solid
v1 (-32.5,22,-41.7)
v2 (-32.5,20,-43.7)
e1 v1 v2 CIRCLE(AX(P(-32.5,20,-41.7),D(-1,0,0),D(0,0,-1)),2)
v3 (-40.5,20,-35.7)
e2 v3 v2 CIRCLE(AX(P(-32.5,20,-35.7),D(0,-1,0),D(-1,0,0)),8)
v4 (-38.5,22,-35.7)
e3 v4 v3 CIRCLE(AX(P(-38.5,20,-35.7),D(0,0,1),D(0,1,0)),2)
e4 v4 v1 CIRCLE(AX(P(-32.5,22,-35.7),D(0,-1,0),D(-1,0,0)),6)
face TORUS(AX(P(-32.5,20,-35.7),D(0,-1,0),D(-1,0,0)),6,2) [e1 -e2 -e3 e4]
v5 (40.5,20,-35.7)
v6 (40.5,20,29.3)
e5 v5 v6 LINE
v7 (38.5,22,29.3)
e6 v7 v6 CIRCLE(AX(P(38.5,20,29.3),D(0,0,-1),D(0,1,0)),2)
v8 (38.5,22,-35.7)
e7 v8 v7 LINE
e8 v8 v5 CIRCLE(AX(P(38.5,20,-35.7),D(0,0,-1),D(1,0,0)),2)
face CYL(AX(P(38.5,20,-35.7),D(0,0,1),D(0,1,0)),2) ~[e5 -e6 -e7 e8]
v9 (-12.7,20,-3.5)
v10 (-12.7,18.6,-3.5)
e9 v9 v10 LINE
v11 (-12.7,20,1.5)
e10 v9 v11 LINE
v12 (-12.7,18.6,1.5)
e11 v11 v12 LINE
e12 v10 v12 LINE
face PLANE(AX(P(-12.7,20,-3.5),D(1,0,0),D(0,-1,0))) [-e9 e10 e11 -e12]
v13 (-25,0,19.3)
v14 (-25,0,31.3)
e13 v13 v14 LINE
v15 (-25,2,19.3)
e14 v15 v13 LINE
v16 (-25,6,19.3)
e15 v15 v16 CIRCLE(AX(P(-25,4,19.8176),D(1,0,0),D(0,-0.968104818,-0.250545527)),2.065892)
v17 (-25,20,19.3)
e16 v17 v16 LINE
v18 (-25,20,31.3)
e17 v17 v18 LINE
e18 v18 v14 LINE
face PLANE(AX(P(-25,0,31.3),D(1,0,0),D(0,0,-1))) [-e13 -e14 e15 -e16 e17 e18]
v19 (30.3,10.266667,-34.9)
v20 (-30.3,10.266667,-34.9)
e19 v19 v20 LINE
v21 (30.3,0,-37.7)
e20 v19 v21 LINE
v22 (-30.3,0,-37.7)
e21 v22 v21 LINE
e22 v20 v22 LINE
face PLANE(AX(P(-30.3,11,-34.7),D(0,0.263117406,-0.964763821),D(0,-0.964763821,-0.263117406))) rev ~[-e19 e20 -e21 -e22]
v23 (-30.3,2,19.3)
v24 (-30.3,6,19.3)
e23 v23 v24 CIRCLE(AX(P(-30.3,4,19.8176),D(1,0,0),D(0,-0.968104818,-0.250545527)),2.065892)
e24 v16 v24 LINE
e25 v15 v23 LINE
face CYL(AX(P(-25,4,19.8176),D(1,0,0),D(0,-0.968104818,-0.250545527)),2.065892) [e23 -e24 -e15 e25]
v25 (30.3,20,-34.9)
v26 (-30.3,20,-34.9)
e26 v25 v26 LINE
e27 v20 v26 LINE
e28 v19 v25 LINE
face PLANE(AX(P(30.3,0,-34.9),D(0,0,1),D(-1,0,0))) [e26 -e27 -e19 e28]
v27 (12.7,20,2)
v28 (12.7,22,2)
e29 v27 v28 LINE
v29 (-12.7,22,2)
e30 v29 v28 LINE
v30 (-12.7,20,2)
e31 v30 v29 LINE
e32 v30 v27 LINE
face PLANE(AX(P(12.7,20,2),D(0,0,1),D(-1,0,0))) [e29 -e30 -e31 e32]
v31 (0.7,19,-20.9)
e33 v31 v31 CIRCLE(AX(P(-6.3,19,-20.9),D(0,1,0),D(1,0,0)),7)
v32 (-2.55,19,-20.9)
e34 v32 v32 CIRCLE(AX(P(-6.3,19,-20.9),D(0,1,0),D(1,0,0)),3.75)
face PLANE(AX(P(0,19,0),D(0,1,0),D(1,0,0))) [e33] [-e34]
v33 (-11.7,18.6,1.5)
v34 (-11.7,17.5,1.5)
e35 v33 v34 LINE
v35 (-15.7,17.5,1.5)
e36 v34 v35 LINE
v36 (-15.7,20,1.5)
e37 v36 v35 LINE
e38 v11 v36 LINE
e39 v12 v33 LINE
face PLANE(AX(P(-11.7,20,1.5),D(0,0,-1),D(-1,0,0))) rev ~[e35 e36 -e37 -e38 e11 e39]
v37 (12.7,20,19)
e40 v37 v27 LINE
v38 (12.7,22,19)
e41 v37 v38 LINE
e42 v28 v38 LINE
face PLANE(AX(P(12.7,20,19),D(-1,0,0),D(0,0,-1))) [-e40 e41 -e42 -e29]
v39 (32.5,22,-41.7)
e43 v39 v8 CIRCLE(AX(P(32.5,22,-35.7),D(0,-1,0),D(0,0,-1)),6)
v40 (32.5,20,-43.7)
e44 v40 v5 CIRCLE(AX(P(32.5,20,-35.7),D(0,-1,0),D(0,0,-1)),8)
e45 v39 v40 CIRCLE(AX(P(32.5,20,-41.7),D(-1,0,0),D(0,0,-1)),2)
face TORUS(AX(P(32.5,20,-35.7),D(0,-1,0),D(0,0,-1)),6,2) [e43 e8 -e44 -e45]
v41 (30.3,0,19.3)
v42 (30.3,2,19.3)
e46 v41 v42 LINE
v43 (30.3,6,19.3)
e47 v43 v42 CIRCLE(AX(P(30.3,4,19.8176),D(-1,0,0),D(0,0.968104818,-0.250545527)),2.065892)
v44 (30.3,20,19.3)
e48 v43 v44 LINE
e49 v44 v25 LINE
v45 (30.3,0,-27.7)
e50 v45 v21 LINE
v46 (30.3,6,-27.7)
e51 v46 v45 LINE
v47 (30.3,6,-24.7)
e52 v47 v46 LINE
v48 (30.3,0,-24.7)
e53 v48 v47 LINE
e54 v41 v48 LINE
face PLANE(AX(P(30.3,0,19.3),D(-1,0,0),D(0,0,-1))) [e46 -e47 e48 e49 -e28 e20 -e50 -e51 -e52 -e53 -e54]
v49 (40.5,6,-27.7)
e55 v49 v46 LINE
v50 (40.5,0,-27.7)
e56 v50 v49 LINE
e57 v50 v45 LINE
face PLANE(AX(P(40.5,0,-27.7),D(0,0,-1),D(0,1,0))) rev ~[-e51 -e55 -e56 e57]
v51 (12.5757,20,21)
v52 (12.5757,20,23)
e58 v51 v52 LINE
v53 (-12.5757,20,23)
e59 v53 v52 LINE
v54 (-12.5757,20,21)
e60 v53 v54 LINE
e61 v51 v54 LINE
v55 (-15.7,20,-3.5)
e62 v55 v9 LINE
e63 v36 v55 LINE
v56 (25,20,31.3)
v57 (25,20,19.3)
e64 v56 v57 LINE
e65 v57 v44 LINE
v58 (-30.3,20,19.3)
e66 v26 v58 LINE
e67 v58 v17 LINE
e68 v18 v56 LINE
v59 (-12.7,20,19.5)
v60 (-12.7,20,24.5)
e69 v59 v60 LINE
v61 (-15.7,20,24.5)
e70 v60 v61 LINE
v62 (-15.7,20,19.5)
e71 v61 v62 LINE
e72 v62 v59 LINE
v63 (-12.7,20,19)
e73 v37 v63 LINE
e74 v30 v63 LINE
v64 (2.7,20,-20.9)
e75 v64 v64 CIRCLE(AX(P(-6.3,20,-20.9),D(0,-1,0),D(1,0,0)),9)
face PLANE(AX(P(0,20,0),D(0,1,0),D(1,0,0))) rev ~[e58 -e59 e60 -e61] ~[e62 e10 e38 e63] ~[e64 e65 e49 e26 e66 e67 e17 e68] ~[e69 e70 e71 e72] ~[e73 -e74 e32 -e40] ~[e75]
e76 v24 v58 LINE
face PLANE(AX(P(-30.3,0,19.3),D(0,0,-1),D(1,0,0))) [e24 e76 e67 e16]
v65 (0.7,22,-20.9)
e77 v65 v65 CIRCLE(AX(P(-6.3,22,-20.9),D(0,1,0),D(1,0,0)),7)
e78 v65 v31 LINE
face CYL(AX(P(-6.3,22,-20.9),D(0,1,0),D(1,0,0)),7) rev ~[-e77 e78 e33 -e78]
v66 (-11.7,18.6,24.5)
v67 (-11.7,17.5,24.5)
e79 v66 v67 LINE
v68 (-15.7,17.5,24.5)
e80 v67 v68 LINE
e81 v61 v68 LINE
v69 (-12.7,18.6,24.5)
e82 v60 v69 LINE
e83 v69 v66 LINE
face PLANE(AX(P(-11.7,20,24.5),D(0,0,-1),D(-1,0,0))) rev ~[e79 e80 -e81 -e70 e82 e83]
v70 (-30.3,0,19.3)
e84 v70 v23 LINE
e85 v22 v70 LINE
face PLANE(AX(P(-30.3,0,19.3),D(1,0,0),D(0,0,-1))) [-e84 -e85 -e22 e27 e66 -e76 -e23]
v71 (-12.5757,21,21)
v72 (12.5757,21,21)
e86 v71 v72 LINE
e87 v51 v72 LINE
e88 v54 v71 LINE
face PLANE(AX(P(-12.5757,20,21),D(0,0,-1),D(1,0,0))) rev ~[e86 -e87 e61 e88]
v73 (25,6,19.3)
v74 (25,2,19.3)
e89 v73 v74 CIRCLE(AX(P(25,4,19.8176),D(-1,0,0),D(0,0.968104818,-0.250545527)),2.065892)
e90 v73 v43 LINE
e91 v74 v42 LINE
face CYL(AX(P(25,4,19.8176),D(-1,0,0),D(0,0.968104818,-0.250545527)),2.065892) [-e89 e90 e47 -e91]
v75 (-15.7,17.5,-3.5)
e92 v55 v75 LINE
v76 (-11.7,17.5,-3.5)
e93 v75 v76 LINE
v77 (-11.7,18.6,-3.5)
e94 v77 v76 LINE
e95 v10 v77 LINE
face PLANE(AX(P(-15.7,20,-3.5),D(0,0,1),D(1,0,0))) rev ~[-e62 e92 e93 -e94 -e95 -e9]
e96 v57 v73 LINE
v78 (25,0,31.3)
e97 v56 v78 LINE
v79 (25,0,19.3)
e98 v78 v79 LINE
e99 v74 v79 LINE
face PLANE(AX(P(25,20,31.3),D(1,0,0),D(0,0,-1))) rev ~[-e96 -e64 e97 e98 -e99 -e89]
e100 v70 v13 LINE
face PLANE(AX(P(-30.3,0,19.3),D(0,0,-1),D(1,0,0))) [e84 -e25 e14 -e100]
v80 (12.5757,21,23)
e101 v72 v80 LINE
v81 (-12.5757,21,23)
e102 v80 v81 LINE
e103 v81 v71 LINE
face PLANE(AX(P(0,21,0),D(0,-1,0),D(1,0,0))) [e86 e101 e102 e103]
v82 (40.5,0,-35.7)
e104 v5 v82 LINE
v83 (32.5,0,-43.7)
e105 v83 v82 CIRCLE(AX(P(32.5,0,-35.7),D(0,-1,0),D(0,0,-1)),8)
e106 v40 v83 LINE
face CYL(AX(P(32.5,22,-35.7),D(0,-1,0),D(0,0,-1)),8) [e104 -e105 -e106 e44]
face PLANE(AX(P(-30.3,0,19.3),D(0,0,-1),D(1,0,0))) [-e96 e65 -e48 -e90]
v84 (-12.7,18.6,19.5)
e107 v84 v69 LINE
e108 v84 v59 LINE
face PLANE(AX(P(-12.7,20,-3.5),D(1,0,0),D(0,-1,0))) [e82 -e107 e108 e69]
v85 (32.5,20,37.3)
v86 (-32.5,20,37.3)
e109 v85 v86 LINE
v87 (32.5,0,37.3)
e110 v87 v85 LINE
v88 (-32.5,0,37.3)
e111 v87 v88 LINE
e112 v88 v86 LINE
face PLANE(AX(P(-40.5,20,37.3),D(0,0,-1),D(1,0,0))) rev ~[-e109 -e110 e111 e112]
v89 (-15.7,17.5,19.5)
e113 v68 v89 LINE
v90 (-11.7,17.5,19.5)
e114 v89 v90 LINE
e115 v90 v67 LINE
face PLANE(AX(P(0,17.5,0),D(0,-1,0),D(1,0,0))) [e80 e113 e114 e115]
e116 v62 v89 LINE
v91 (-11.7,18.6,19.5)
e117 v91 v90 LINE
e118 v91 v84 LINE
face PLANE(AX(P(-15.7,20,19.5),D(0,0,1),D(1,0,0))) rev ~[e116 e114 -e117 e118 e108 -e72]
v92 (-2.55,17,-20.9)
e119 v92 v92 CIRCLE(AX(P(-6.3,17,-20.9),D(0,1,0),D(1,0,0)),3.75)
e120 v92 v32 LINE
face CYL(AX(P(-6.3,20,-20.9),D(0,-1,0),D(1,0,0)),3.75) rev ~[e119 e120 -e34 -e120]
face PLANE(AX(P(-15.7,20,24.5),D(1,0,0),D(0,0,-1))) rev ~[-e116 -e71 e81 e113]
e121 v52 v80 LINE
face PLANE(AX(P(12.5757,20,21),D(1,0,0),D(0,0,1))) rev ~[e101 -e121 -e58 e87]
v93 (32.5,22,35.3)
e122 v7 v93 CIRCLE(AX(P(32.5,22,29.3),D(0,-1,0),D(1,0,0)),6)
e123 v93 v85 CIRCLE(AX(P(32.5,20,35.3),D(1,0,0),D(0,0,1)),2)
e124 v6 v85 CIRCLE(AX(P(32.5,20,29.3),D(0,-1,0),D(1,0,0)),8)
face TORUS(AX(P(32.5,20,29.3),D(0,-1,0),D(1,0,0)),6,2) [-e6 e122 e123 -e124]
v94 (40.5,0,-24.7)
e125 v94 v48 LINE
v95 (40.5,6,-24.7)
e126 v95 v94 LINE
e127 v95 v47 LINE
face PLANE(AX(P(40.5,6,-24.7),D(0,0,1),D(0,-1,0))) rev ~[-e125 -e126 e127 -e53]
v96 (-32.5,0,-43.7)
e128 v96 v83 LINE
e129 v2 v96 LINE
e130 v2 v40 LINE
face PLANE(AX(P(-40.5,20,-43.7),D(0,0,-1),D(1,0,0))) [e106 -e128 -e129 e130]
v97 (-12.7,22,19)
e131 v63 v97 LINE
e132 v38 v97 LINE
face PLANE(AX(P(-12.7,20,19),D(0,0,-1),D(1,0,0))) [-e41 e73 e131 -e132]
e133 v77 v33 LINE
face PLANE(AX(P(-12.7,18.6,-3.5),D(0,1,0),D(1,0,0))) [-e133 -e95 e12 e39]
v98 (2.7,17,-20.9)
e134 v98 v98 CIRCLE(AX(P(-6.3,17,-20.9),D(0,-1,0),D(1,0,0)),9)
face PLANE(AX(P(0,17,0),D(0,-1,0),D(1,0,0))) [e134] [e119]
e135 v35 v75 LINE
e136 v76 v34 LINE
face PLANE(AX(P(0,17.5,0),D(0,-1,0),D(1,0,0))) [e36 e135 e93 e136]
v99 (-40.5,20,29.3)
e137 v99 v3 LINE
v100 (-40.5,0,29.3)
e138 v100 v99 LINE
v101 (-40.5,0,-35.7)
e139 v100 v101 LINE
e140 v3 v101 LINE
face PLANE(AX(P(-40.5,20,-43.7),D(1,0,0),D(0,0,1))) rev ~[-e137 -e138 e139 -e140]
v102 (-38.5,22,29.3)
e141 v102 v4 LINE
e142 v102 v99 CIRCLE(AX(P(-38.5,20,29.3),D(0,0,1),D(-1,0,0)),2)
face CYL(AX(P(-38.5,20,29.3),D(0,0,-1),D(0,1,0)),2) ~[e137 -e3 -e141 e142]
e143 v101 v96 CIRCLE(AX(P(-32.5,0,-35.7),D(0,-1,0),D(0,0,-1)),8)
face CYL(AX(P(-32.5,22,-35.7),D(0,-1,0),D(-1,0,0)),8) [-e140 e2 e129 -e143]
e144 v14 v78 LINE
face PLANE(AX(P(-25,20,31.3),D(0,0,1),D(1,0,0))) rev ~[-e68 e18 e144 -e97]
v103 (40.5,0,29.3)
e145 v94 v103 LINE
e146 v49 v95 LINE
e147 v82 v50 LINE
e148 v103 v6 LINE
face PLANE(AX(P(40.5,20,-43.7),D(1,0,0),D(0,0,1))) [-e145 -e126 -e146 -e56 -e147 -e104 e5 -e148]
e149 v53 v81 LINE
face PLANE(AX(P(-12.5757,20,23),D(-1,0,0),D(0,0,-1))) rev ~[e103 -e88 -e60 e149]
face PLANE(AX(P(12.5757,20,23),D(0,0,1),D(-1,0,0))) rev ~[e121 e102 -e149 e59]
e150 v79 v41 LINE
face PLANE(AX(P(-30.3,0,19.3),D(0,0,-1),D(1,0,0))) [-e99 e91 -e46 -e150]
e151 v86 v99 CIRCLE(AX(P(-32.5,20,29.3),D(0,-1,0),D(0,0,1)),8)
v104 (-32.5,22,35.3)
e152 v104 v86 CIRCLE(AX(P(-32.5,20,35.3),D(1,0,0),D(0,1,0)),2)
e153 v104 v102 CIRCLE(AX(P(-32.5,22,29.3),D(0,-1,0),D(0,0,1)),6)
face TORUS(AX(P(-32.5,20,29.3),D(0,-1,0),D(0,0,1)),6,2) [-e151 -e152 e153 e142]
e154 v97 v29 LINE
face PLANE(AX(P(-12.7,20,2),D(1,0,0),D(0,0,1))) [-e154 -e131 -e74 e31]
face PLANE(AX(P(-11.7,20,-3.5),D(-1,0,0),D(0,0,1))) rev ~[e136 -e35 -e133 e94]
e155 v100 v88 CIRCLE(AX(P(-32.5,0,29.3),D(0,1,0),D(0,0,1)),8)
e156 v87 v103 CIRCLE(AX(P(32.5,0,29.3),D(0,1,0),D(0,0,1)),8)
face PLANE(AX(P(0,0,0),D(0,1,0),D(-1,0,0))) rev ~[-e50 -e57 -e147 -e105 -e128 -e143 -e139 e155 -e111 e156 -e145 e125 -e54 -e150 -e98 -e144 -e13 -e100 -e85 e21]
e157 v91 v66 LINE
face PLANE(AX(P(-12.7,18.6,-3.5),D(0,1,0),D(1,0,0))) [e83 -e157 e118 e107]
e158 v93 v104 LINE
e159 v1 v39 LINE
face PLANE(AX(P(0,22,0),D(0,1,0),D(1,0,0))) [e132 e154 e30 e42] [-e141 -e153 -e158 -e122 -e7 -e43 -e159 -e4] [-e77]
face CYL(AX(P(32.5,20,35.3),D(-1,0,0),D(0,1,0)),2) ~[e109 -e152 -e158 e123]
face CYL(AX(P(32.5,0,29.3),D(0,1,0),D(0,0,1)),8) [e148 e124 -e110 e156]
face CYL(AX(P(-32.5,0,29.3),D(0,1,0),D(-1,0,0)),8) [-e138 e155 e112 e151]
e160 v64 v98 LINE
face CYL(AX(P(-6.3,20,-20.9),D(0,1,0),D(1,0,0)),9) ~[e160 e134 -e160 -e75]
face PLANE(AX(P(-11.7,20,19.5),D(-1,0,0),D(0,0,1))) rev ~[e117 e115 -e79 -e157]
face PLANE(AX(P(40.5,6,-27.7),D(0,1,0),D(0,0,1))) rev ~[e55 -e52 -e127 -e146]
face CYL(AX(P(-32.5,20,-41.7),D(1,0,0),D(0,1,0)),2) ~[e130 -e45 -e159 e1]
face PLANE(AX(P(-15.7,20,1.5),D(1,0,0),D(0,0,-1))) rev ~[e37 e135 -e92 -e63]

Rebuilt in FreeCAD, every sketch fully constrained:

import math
import FreeCAD as App
import Part
import Sketcher
Q = App.Units.Quantity


def edges_at(feature, points):
    """Names of the edges that pass closest to the given points."""
    edges = feature.Shape.Edges
    near = lambda p: min(range(len(edges)), key=lambda i: edges[i].distToShape(Part.Vertex(*p))[0])
    return sorted({f"Edge{near(p) + 1}" for p in points})

doc = App.newDocument("Part")
params = doc.addObject("Spreadsheet::Sheet", "Params")
for row, (alias, value) in enumerate([
    ("sketch1_width", "81 mm"),
    ("sketch1_width2", "60.6 mm"),
    ("sketch1_height", "54.2 mm"),
    ("pad1_length", "20 mm"),
    ("sketch2_width", "50 mm"),
    ("sketch2_height", "12 mm"),
    ("pocket1_length", "20 mm"),
    ("sketch3_width", "81 mm"),
    ("pad2_length", "2 mm"),
    ("sketch4_height", "17 mm"),
    ("sketch4_width", "25.4 mm"),
    ("pocket2_length", "20 mm"),
    ("sketch5_height", "2 mm"),
    ("pocket3_length", "1 mm"),
    ("sketch6_width", "4 mm"),
    ("sketch6_height", "5 mm"),
    ("pad3_length", "2.5 mm"),
    ("sketch7_width", "1 mm"),
    ("sketch7_height", "1.4 mm"),
    ("pocket4_length", "29.5 mm"),
    ("fillet_radius", "8 mm"),
    ("fillet2_radius", "2 mm"),
    ("sketch8_width", "11 mm"),
    ("sketch8_height", "3 mm"),
    ("pocket5_length", "60.6 mm"),
    ("sketch9_width", "4 mm"),
    ("pad4_length", "10 mm"),
    ("sketch10_width", "4 mm"),
    ("pad5_length", "10 mm"),
    ("sketch11_diameter", "7.5 mm"),
    ("pocket6_length", "10 mm"),
    ("sketch12_diameter", "18 mm"),
    ("pad6_length", "3 mm"),
    ("sketch13_diameter", "7.5 mm"),
    ("sketch14_diameter", "14 mm"),
    ("sketch14_diameter2", "7.5 mm"),
    ("pocket8_length", "3 mm"),
    ("sketch15_width", "6 mm"),
    ("sketch15_height", "3 mm"),
    ("pocket9_length", "27.75 mm"),
], start=1):
    params.set(f"A{row}", alias)
    params.set(f"B{row}", "=" + value)
    params.setAlias(f"B{row}", alias)

body = doc.addObject("PartDesign::Body", "Body")

sketch1 = doc.addObject("Sketcher::SketchObject", "Sketch")
body.addObject(sketch1)
sketch1.AttachmentSupport = (doc.XZ_Plane, [""])
sketch1.MapMode = "FlatFace"
sketch1.addGeometry(Part.LineSegment(App.Vector(40, -44, 0), App.Vector(-40, -44, 0)), False)
sketch1.addGeometry(Part.LineSegment(App.Vector(-40, -44, 0), App.Vector(-40, 37, 0)), False)
sketch1.addGeometry(Part.LineSegment(App.Vector(-40, 37, 0), App.Vector(40, 37, 0)), False)
sketch1.addGeometry(Part.LineSegment(App.Vector(40, 37, 0), App.Vector(40, -44, 0)), False)
sketch1.addGeometry(Part.LineSegment(App.Vector(30, 19, 0), App.Vector(-30, 19, 0)), False)
sketch1.addGeometry(Part.LineSegment(App.Vector(-30, 19, 0), App.Vector(-30, -35, 0)), False)
sketch1.addGeometry(Part.LineSegment(App.Vector(-30, -35, 0), App.Vector(30, -35, 0)), False)
sketch1.addGeometry(Part.LineSegment(App.Vector(30, -35, 0), App.Vector(30, 19, 0)), False)
sketch1.addConstraint(Sketcher.Constraint("Coincident", 0, 2, 1, 1))
sketch1.addConstraint(Sketcher.Constraint("Coincident", 1, 2, 2, 1))
sketch1.addConstraint(Sketcher.Constraint("Coincident", 2, 2, 3, 1))
sketch1.addConstraint(Sketcher.Constraint("Coincident", 3, 2, 0, 1))
sketch1.addConstraint(Sketcher.Constraint("Coincident", 4, 2, 5, 1))
sketch1.addConstraint(Sketcher.Constraint("Coincident", 5, 2, 6, 1))
sketch1.addConstraint(Sketcher.Constraint("Coincident", 6, 2, 7, 1))
sketch1.addConstraint(Sketcher.Constraint("Coincident", 7, 2, 4, 1))
sketch1.addConstraint(Sketcher.Constraint("Horizontal", 0))
sketch1.addConstraint(Sketcher.Constraint("Vertical", 1))
sketch1.addConstraint(Sketcher.Constraint("Horizontal", 2))
sketch1.addConstraint(Sketcher.Constraint("Vertical", 3))
sketch1.addConstraint(Sketcher.Constraint("Horizontal", 4))
sketch1.addConstraint(Sketcher.Constraint("Vertical", 5))
sketch1.addConstraint(Sketcher.Constraint("Horizontal", 6))
sketch1.addConstraint(Sketcher.Constraint("Vertical", 7))
sketch1.addConstraint(Sketcher.Constraint("Equal", 2, 1))
sketch1.addConstraint(Sketcher.Constraint("DistanceX", 0, 2, 0, 1, Q("81 mm")))
sketch1.addConstraint(Sketcher.Constraint("DistanceX", 4, 2, 4, 1, Q("60.6 mm")))
sketch1.addConstraint(Sketcher.Constraint("DistanceY", 5, 2, 5, 1, Q("54.2 mm")))
sketch1.addConstraint(Sketcher.Constraint("DistanceY", 4, 2, 1, 2, Q("18 mm")))
sketch1.addConstraint(Sketcher.Constraint("DistanceX", 0, 2, -1, 1, Q("40.5 mm")))
sketch1.addConstraint(Sketcher.Constraint("DistanceX", 4, 2, -1, 1, Q("30.3 mm")))
sketch1.addConstraint(Sketcher.Constraint("DistanceY", -1, 1, 4, 2, Q("19.3 mm")))
sketch1.setExpression("Constraints[17]", "Params.sketch1_width")
sketch1.setExpression("Constraints[18]", "Params.sketch1_width2")
sketch1.setExpression("Constraints[19]", "Params.sketch1_height")
pad1 = doc.addObject("PartDesign::Pad", "Pad")
body.addObject(pad1)
pad1.Profile = sketch1
pad1.setExpression("Length", "Params.pad1_length")
pad1.Reversed = True

sketch2 = doc.addObject("Sketcher::SketchObject", "Sketch001")
body.addObject(sketch2)
sketch2.AttachmentSupport = (doc.XZ_Plane, [""])
sketch2.MapMode = "FlatFace"
sketch2.AttachmentOffset = App.Placement(App.Vector(0, 0, -20), App.Rotation())
sketch2.addGeometry(Part.LineSegment(App.Vector(25, 31, 0), App.Vector(25, 19, 0)), False)
sketch2.addGeometry(Part.LineSegment(App.Vector(25, 19, 0), App.Vector(-25, 19, 0)), False)
sketch2.addGeometry(Part.LineSegment(App.Vector(-25, 19, 0), App.Vector(-25, 31, 0)), False)
sketch2.addGeometry(Part.LineSegment(App.Vector(-25, 31, 0), App.Vector(25, 31, 0)), False)
sketch2.addConstraint(Sketcher.Constraint("Coincident", 0, 2, 1, 1))
sketch2.addConstraint(Sketcher.Constraint("Coincident", 1, 2, 2, 1))
sketch2.addConstraint(Sketcher.Constraint("Coincident", 2, 2, 3, 1))
sketch2.addConstraint(Sketcher.Constraint("Coincident", 3, 2, 0, 1))
sketch2.addConstraint(Sketcher.Constraint("Vertical", 0))
sketch2.addConstraint(Sketcher.Constraint("Horizontal", 1))
sketch2.addConstraint(Sketcher.Constraint("Vertical", 2))
sketch2.addConstraint(Sketcher.Constraint("Horizontal", 3))
sketch2.addConstraint(Sketcher.Constraint("DistanceX", 1, 2, 1, 1, Q("50 mm")))
sketch2.addConstraint(Sketcher.Constraint("DistanceY", 0, 2, 0, 1, Q("12 mm")))
sketch2.addConstraint(Sketcher.Constraint("DistanceX", -1, 1, 0, 2, Q("25 mm")))
sketch2.addConstraint(Sketcher.Constraint("DistanceY", -1, 1, 0, 2, Q("19.3 mm")))
sketch2.setExpression("Constraints[8]", "Params.sketch2_width")
sketch2.setExpression("Constraints[9]", "Params.sketch2_height")
pocket1 = doc.addObject("PartDesign::Pocket", "Pocket")
body.addObject(pocket1)
pocket1.Profile = sketch2
pocket1.setExpression("Length", "Params.pocket1_length")
pocket1.Reversed = True

sketch3 = doc.addObject("Sketcher::SketchObject", "Sketch002")
body.addObject(sketch3)
sketch3.AttachmentSupport = (doc.XZ_Plane, [""])
sketch3.MapMode = "FlatFace"
sketch3.AttachmentOffset = App.Placement(App.Vector(0, 0, -20), App.Rotation())
sketch3.addGeometry(Part.LineSegment(App.Vector(-40, -44, 0), App.Vector(-40, 37, 0)), False)
sketch3.addGeometry(Part.LineSegment(App.Vector(-40, 37, 0), App.Vector(40, 37, 0)), False)
sketch3.addGeometry(Part.LineSegment(App.Vector(40, 37, 0), App.Vector(40, -44, 0)), False)
sketch3.addGeometry(Part.LineSegment(App.Vector(40, -44, 0), App.Vector(-40, -44, 0)), False)
sketch3.addConstraint(Sketcher.Constraint("Coincident", 0, 2, 1, 1))
sketch3.addConstraint(Sketcher.Constraint("Coincident", 1, 2, 2, 1))
sketch3.addConstraint(Sketcher.Constraint("Coincident", 2, 2, 3, 1))
sketch3.addConstraint(Sketcher.Constraint("Coincident", 3, 2, 0, 1))
sketch3.addConstraint(Sketcher.Constraint("Vertical", 0))
sketch3.addConstraint(Sketcher.Constraint("Horizontal", 1))
sketch3.addConstraint(Sketcher.Constraint("Vertical", 2))
sketch3.addConstraint(Sketcher.Constraint("Horizontal", 3))
sketch3.addConstraint(Sketcher.Constraint("Equal", 3, 0))
sketch3.addConstraint(Sketcher.Constraint("DistanceX", 1, 1, 1, 2, Q("81 mm")))
sketch3.addConstraint(Sketcher.Constraint("DistanceX", 0, 2, -1, 1, Q("40.5 mm")))
sketch3.addConstraint(Sketcher.Constraint("DistanceY", -1, 1, 0, 2, Q("37.3 mm")))
sketch3.setExpression("Constraints[9]", "Params.sketch3_width")
pad2 = doc.addObject("PartDesign::Pad", "Pad001")
body.addObject(pad2)
pad2.Profile = sketch3
pad2.setExpression("Length", "Params.pad2_length")
pad2.Reversed = True

sketch4 = doc.addObject("Sketcher::SketchObject", "Sketch003")
body.addObject(sketch4)
sketch4.AttachmentSupport = (doc.XZ_Plane, [""])
sketch4.MapMode = "FlatFace"
sketch4.AttachmentOffset = App.Placement(App.Vector(0, 0, -20), App.Rotation())
sketch4.addGeometry(Part.LineSegment(App.Vector(13, 19, 0), App.Vector(-13, 19, 0)), False)
sketch4.addGeometry(Part.LineSegment(App.Vector(-13, 19, 0), App.Vector(-13, 2, 0)), False)
sketch4.addGeometry(Part.LineSegment(App.Vector(-13, 2, 0), App.Vector(13, 2, 0)), False)
sketch4.addGeometry(Part.LineSegment(App.Vector(13, 2, 0), App.Vector(13, 19, 0)), False)
sketch4.addConstraint(Sketcher.Constraint("Coincident", 0, 2, 1, 1))
sketch4.addConstraint(Sketcher.Constraint("Coincident", 1, 2, 2, 1))
sketch4.addConstraint(Sketcher.Constraint("Coincident", 2, 2, 3, 1))
sketch4.addConstraint(Sketcher.Constraint("Coincident", 3, 2, 0, 1))
sketch4.addConstraint(Sketcher.Constraint("Horizontal", 0))
sketch4.addConstraint(Sketcher.Constraint("Vertical", 1))
sketch4.addConstraint(Sketcher.Constraint("Horizontal", 2))
sketch4.addConstraint(Sketcher.Constraint("Vertical", 3))
sketch4.addConstraint(Sketcher.Constraint("DistanceY", 1, 2, 1, 1, Q("17 mm")))
sketch4.addConstraint(Sketcher.Constraint("DistanceX", 0, 2, 0, 1, Q("25.4 mm")))
sketch4.addConstraint(Sketcher.Constraint("DistanceY", -1, 1, 1, 2, Q("2 mm")))
sketch4.addConstraint(Sketcher.Constraint("DistanceX", 0, 2, -1, 1, Q("12.7 mm")))
sketch4.setExpression("Constraints[8]", "Params.sketch4_height")
sketch4.setExpression("Constraints[9]", "Params.sketch4_width")
pocket2 = doc.addObject("PartDesign::Pocket", "Pocket001")
body.addObject(pocket2)
pocket2.Profile = sketch4
pocket2.setExpression("Length", "Params.pocket2_length")

sketch5 = doc.addObject("Sketcher::SketchObject", "Sketch004")
body.addObject(sketch5)
sketch5.AttachmentSupport = (doc.XZ_Plane, [""])
sketch5.MapMode = "FlatFace"
sketch5.AttachmentOffset = App.Placement(App.Vector(0, 0, -20), App.Rotation())
sketch5.addGeometry(Part.LineSegment(App.Vector(-12.6, 23, 0), App.Vector(-12.6, 21, 0)), False)
sketch5.addGeometry(Part.LineSegment(App.Vector(-12.6, 21, 0), App.Vector(12.6, 21, 0)), False)
sketch5.addGeometry(Part.LineSegment(App.Vector(12.6, 21, 0), App.Vector(12.6, 23, 0)), False)
sketch5.addGeometry(Part.LineSegment(App.Vector(12.6, 23, 0), App.Vector(-12.6, 23, 0)), False)
sketch5.addConstraint(Sketcher.Constraint("Coincident", 0, 2, 1, 1))
sketch5.addConstraint(Sketcher.Constraint("Coincident", 1, 2, 2, 1))
sketch5.addConstraint(Sketcher.Constraint("Coincident", 2, 2, 3, 1))
sketch5.addConstraint(Sketcher.Constraint("Coincident", 3, 2, 0, 1))
sketch5.addConstraint(Sketcher.Constraint("Vertical", 0))
sketch5.addConstraint(Sketcher.Constraint("Horizontal", 1))
sketch5.addConstraint(Sketcher.Constraint("Vertical", 2))
sketch5.addConstraint(Sketcher.Constraint("Horizontal", 3))
sketch5.addConstraint(Sketcher.Constraint("DistanceY", 0, 2, 0, 1, Q("2 mm")))
sketch5.addConstraint(Sketcher.Constraint("DistanceY", -1, 1, 0, 2, Q("21 mm")))
sketch5.addConstraint(Sketcher.Constraint("DistanceX", 1, 1, 1, 2, Q("25.1514 mm")))
sketch5.addConstraint(Sketcher.Constraint("DistanceX", 0, 2, -1, 1, Q("12.5757 mm")))
sketch5.setExpression("Constraints[8]", "Params.sketch5_height")
pocket3 = doc.addObject("PartDesign::Pocket", "Pocket002")
body.addObject(pocket3)
pocket3.Profile = sketch5
pocket3.setExpression("Length", "Params.pocket3_length")

sketch6 = doc.addObject("Sketcher::SketchObject", "Sketch005")
body.addObject(sketch6)
sketch6.AttachmentSupport = (doc.XZ_Plane, [""])
sketch6.MapMode = "FlatFace"
sketch6.AttachmentOffset = App.Placement(App.Vector(0, 0, -20), App.Rotation())
sketch6.addGeometry(Part.LineSegment(App.Vector(-15.7, 1.5, 0), App.Vector(-15.7, -3.5, 0)), False)
sketch6.addGeometry(Part.LineSegment(App.Vector(-15.7, -3.5, 0), App.Vector(-11.7, -3.5, 0)), False)
sketch6.addGeometry(Part.LineSegment(App.Vector(-11.7, -3.5, 0), App.Vector(-11.7, 1.5, 0)), False)
sketch6.addGeometry(Part.LineSegment(App.Vector(-11.7, 1.5, 0), App.Vector(-15.7, 1.5, 0)), False)
sketch6.addGeometry(Part.LineSegment(App.Vector(-15.7, 24.5, 0), App.Vector(-15.7, 19.5, 0)), False)
sketch6.addGeometry(Part.LineSegment(App.Vector(-15.7, 19.5, 0), App.Vector(-11.7, 19.5, 0)), False)
sketch6.addGeometry(Part.LineSegment(App.Vector(-11.7, 19.5, 0), App.Vector(-11.7, 24.5, 0)), False)
sketch6.addGeometry(Part.LineSegment(App.Vector(-11.7, 24.5, 0), App.Vector(-15.7, 24.5, 0)), False)
sketch6.addConstraint(Sketcher.Constraint("Coincident", 0, 2, 1, 1))
sketch6.addConstraint(Sketcher.Constraint("Coincident", 1, 2, 2, 1))
sketch6.addConstraint(Sketcher.Constraint("Coincident", 2, 2, 3, 1))
sketch6.addConstraint(Sketcher.Constraint("Coincident", 3, 2, 0, 1))
sketch6.addConstraint(Sketcher.Constraint("Coincident", 4, 2, 5, 1))
sketch6.addConstraint(Sketcher.Constraint("Coincident", 5, 2, 6, 1))
sketch6.addConstraint(Sketcher.Constraint("Coincident", 6, 2, 7, 1))
sketch6.addConstraint(Sketcher.Constraint("Coincident", 7, 2, 4, 1))
sketch6.addConstraint(Sketcher.Constraint("Vertical", 0))
sketch6.addConstraint(Sketcher.Constraint("Horizontal", 1))
sketch6.addConstraint(Sketcher.Constraint("Vertical", 2))
sketch6.addConstraint(Sketcher.Constraint("Horizontal", 3))
sketch6.addConstraint(Sketcher.Constraint("Vertical", 4))
sketch6.addConstraint(Sketcher.Constraint("Horizontal", 5))
sketch6.addConstraint(Sketcher.Constraint("Vertical", 6))
sketch6.addConstraint(Sketcher.Constraint("Horizontal", 7))
sketch6.addConstraint(Sketcher.Constraint("Vertical", 3, 2, 4, 2))
sketch6.addConstraint(Sketcher.Constraint("Vertical", 2, 2, 5, 2))
sketch6.addConstraint(Sketcher.Constraint("Equal", 2, 4))
sketch6.addConstraint(Sketcher.Constraint("DistanceX", 1, 1, 1, 2, Q("4 mm")))
sketch6.addConstraint(Sketcher.Constraint("DistanceY", 0, 2, 0, 1, Q("5 mm")))
sketch6.addConstraint(Sketcher.Constraint("DistanceY", 3, 2, 4, 2, Q("18 mm")))
sketch6.addConstraint(Sketcher.Constraint("DistanceX", 0, 2, -1, 1, Q("15.7 mm")))
sketch6.addConstraint(Sketcher.Constraint("DistanceY", 0, 2, -1, 1, Q("3.5 mm")))
sketch6.setExpression("Constraints[19]", "Params.sketch6_width")
sketch6.setExpression("Constraints[20]", "Params.sketch6_height")
pad3 = doc.addObject("PartDesign::Pad", "Pad002")
body.addObject(pad3)
pad3.Profile = sketch6
pad3.setExpression("Length", "Params.pad3_length")

sketch7 = doc.addObject("Sketcher::SketchObject", "Sketch006")
body.addObject(sketch7)
sketch7.AttachmentSupport = (doc.XY_Plane, [""])
sketch7.MapMode = "FlatFace"
sketch7.AttachmentOffset = App.Placement(App.Vector(0, 0, -3.5), App.Rotation())
sketch7.addGeometry(Part.LineSegment(App.Vector(-12.7, 20, 0), App.Vector(-11.7, 20, 0)), False)
sketch7.addGeometry(Part.LineSegment(App.Vector(-11.7, 20, 0), App.Vector(-11.7, 18.6, 0)), False)
sketch7.addGeometry(Part.LineSegment(App.Vector(-11.7, 18.6, 0), App.Vector(-12.7, 18.6, 0)), False)
sketch7.addGeometry(Part.LineSegment(App.Vector(-12.7, 18.6, 0), App.Vector(-12.7, 20, 0)), False)
sketch7.addConstraint(Sketcher.Constraint("Coincident", 0, 2, 1, 1))
sketch7.addConstraint(Sketcher.Constraint("Coincident", 1, 2, 2, 1))
sketch7.addConstraint(Sketcher.Constraint("Coincident", 2, 2, 3, 1))
sketch7.addConstraint(Sketcher.Constraint("Coincident", 3, 2, 0, 1))
sketch7.addConstraint(Sketcher.Constraint("Horizontal", 0))
sketch7.addConstraint(Sketcher.Constraint("Vertical", 1))
sketch7.addConstraint(Sketcher.Constraint("Horizontal", 2))
sketch7.addConstraint(Sketcher.Constraint("Vertical", 3))
sketch7.addConstraint(Sketcher.Constraint("DistanceX", 0, 1, 0, 2, Q("1 mm")))
sketch7.addConstraint(Sketcher.Constraint("DistanceY", 1, 2, 1, 1, Q("1.4 mm")))
sketch7.addConstraint(Sketcher.Constraint("DistanceY", -1, 1, 0, 2, Q("20 mm")))
sketch7.addConstraint(Sketcher.Constraint("DistanceX", 0, 2, -1, 1, Q("11.7 mm")))
sketch7.setExpression("Constraints[8]", "Params.sketch7_width")
sketch7.setExpression("Constraints[9]", "Params.sketch7_height")
pocket4 = doc.addObject("PartDesign::Pocket", "Pocket003")
body.addObject(pocket4)
pocket4.Profile = sketch7
pocket4.setExpression("Length", "Params.pocket4_length")
pocket4.Reversed = True
doc.recompute()

fillet = doc.addObject("PartDesign::Fillet", "Fillet")
body.addObject(fillet)
fillet.Base = (pocket4, edges_at(pocket4, [
    (40.5, 11, 37.3),
    (40.5, 11, -43.7),
    (-40.5, 11, 37.3),
    (-40.5, 11, -43.7),
]))
fillet.setExpression("Radius", "Params.fillet_radius")
doc.recompute()

fillet2 = doc.addObject("PartDesign::Fillet", "Fillet001")
body.addObject(fillet2)
fillet2.Base = (fillet, edges_at(fillet, [
    (38.157, 22, -41.357),
    (0, 22, -43.7),
    (-38.157, 22, -41.357),
    (-40.5, 22, -3.2),
    (-38.157, 22, 34.957),
    (0, 22, 37.3),
    (38.157, 22, 34.957),
    (40.5, 22, -3.2),
]))
fillet2.setExpression("Radius", "Params.fillet2_radius")

sketch8 = doc.addObject("Sketcher::SketchObject", "Sketch007")
body.addObject(sketch8)
sketch8.AttachmentSupport = (doc.YZ_Plane, [""])
sketch8.MapMode = "FlatFace"
sketch8.AttachmentOffset = App.Placement(App.Vector(0, 0, -30.3), App.Rotation())
sketch8.addGeometry(Part.LineSegment(App.Vector(0, -37.7, 0), App.Vector(11, -34.7, 0)), False)
sketch8.addGeometry(Part.LineSegment(App.Vector(11, -34.7, 0), App.Vector(0, -34.7, 0)), False)
sketch8.addGeometry(Part.LineSegment(App.Vector(0, -34.7, 0), App.Vector(0, -37.7, 0)), False)
sketch8.addConstraint(Sketcher.Constraint("Coincident", 0, 2, 1, 1))
sketch8.addConstraint(Sketcher.Constraint("Coincident", 1, 2, 2, 1))
sketch8.addConstraint(Sketcher.Constraint("Coincident", 2, 2, 0, 1))
sketch8.addConstraint(Sketcher.Constraint("Horizontal", 1))
sketch8.addConstraint(Sketcher.Constraint("Vertical", 2))
sketch8.addConstraint(Sketcher.Constraint("PointOnObject", 1, 2, -2))
sketch8.addConstraint(Sketcher.Constraint("DistanceX", 1, 2, 1, 1, Q("11 mm")))
sketch8.addConstraint(Sketcher.Constraint("DistanceY", 2, 2, 2, 1, Q("3 mm")))
sketch8.addConstraint(Sketcher.Constraint("DistanceY", 0, 2, -1, 1, Q("34.7 mm")))
sketch8.setExpression("Constraints[6]", "Params.sketch8_width")
sketch8.setExpression("Constraints[7]", "Params.sketch8_height")
pocket5 = doc.addObject("PartDesign::Pocket", "Pocket004")
body.addObject(pocket5)
pocket5.Profile = sketch8
pocket5.setExpression("Length", "Params.pocket5_length")
pocket5.Reversed = True

sketch9 = doc.addObject("Sketcher::SketchObject", "Sketch008")
body.addObject(sketch9)
sketch9.AttachmentSupport = (doc.YZ_Plane, [""])
sketch9.MapMode = "FlatFace"
sketch9.AttachmentOffset = App.Placement(App.Vector(0, 0, -25), App.Rotation())
sketch9.addGeometry(Part.LineSegment(App.Vector(6, 19.3, 0), App.Vector(2, 19.3, 0)), False)
sketch9.addGeometry(Part.ArcOfCircle(Part.Circle(App.Vector(4, 19.8, 0), App.Vector(0, 0, 1), 2.1), math.radians(-165), math.radians(-15)), False)
sketch9.addConstraint(Sketcher.Constraint("Coincident", 0, 1, 1, 2))
sketch9.addConstraint(Sketcher.Constraint("Coincident", 1, 1, 0, 2))
sketch9.addConstraint(Sketcher.Constraint("Horizontal", 0))
sketch9.addConstraint(Sketcher.Constraint("DistanceX", 0, 2, 0, 1, Q("4 mm")))
sketch9.addConstraint(Sketcher.Constraint("DistanceX", -1, 1, 1, 3, Q("4 mm")))
sketch9.addConstraint(Sketcher.Constraint("Radius", 1, Q("2.066 mm")))
sketch9.addConstraint(Sketcher.Constraint("DistanceY", -1, 1, 0, 1, Q("19.3 mm")))
sketch9.setExpression("Constraints[3]", "Params.sketch9_width")
pad4 = doc.addObject("PartDesign::Pad", "Pad003")
body.addObject(pad4)
pad4.Profile = sketch9
pad4.setExpression("Length", "Params.pad4_length")
pad4.Reversed = True

sketch10 = doc.addObject("Sketcher::SketchObject", "Sketch009")
body.addObject(sketch10)
sketch10.AttachmentSupport = (doc.YZ_Plane, [""])
sketch10.MapMode = "FlatFace"
sketch10.AttachmentOffset = App.Placement(App.Vector(0, 0, 25), App.Rotation())
sketch10.addGeometry(Part.ArcOfCircle(Part.Circle(App.Vector(4, 19.8, 0), App.Vector(0, 0, 1), 2.1), math.radians(-165), math.radians(-15)), False)
sketch10.addGeometry(Part.LineSegment(App.Vector(2, 19.3, 0), App.Vector(6, 19.3, 0)), False)
sketch10.addConstraint(Sketcher.Constraint("Coincident", 0, 1, 1, 1))
sketch10.addConstraint(Sketcher.Constraint("Coincident", 1, 2, 0, 2))
sketch10.addConstraint(Sketcher.Constraint("Horizontal", 1))
sketch10.addConstraint(Sketcher.Constraint("DistanceX", 1, 1, 1, 2, Q("4 mm")))
sketch10.addConstraint(Sketcher.Constraint("DistanceX", -1, 1, 0, 3, Q("4 mm")))
sketch10.addConstraint(Sketcher.Constraint("Radius", 0, Q("2.066 mm")))
sketch10.addConstraint(Sketcher.Constraint("DistanceY", -1, 1, 0, 1, Q("19.3 mm")))
sketch10.setExpression("Constraints[3]", "Params.sketch10_width")
pad5 = doc.addObject("PartDesign::Pad", "Pad004")
body.addObject(pad5)
pad5.Profile = sketch10
pad5.setExpression("Length", "Params.pad5_length")

sketch11 = doc.addObject("Sketcher::SketchObject", "Sketch010")
body.addObject(sketch11)
sketch11.AttachmentSupport = (doc.XZ_Plane, [""])
sketch11.MapMode = "FlatFace"
sketch11.AttachmentOffset = App.Placement(App.Vector(0, 0, -20), App.Rotation())
sketch11.addGeometry(Part.Circle(App.Vector(-6.3, -20.9, 0), App.Vector(0, 0, 1), 3.8), False)
sketch11.addConstraint(Sketcher.Constraint("Diameter", 0, Q("7.5 mm")))
sketch11.addConstraint(Sketcher.Constraint("DistanceX", 0, 3, -1, 1, Q("6.3 mm")))
sketch11.addConstraint(Sketcher.Constraint("DistanceY", 0, 3, -1, 1, Q("20.9 mm")))
sketch11.setExpression("Constraints[0]", "Params.sketch11_diameter")
pocket6 = doc.addObject("PartDesign::Pocket", "Pocket005")
body.addObject(pocket6)
pocket6.Profile = sketch11
pocket6.setExpression("Length", "Params.pocket6_length")

sketch12 = doc.addObject("Sketcher::SketchObject", "Sketch011")
body.addObject(sketch12)
sketch12.AttachmentSupport = (doc.XZ_Plane, [""])
sketch12.MapMode = "FlatFace"
sketch12.AttachmentOffset = App.Placement(App.Vector(0, 0, -20), App.Rotation())
sketch12.addGeometry(Part.Circle(App.Vector(-6, -21, 0), App.Vector(0, 0, 1), 9), False)
sketch12.addConstraint(Sketcher.Constraint("Diameter", 0, Q("18 mm")))
sketch12.addConstraint(Sketcher.Constraint("DistanceX", 0, 3, -1, 1, Q("6.3 mm")))
sketch12.addConstraint(Sketcher.Constraint("DistanceY", 0, 3, -1, 1, Q("20.9 mm")))
sketch12.setExpression("Constraints[0]", "Params.sketch12_diameter")
pad6 = doc.addObject("PartDesign::Pad", "Pad005")
body.addObject(pad6)
pad6.Profile = sketch12
pad6.setExpression("Length", "Params.pad6_length")

sketch13 = doc.addObject("Sketcher::SketchObject", "Sketch012")
body.addObject(sketch13)
sketch13.AttachmentSupport = (doc.XZ_Plane, [""])
sketch13.MapMode = "FlatFace"
sketch13.AttachmentOffset = App.Placement(App.Vector(0, 0, -20), App.Rotation())
sketch13.addGeometry(Part.Circle(App.Vector(-6.3, -20.9, 0), App.Vector(0, 0, 1), 3.8), False)
sketch13.addConstraint(Sketcher.Constraint("Diameter", 0, Q("7.5 mm")))
sketch13.addConstraint(Sketcher.Constraint("DistanceX", 0, 3, -1, 1, Q("6.3 mm")))
sketch13.addConstraint(Sketcher.Constraint("DistanceY", 0, 3, -1, 1, Q("20.9 mm")))
sketch13.setExpression("Constraints[0]", "Params.sketch13_diameter")
pocket7 = doc.addObject("PartDesign::Pocket", "Pocket006")
body.addObject(pocket7)
pocket7.Profile = sketch13
pocket7.Type = "ThroughAll"
pocket7.Reversed = True

sketch14 = doc.addObject("Sketcher::SketchObject", "Sketch013")
body.addObject(sketch14)
sketch14.AttachmentSupport = (doc.XZ_Plane, [""])
sketch14.MapMode = "FlatFace"
sketch14.AttachmentOffset = App.Placement(App.Vector(0, 0, -22), App.Rotation())
sketch14.addGeometry(Part.Circle(App.Vector(-6.3, -20.9, 0), App.Vector(0, 0, 1), 7), False)
sketch14.addGeometry(Part.Circle(App.Vector(-6.3, -20.9, 0), App.Vector(0, 0, 1), 3.8), False)
sketch14.addConstraint(Sketcher.Constraint("Coincident", 1, 3, 0, 3))
sketch14.addConstraint(Sketcher.Constraint("Diameter", 0, Q("14 mm")))
sketch14.addConstraint(Sketcher.Constraint("Diameter", 1, Q("7.5 mm")))
sketch14.addConstraint(Sketcher.Constraint("DistanceX", 0, 3, -1, 1, Q("6.3 mm")))
sketch14.addConstraint(Sketcher.Constraint("DistanceY", 0, 3, -1, 1, Q("20.9 mm")))
sketch14.setExpression("Constraints[1]", "Params.sketch14_diameter")
sketch14.setExpression("Constraints[2]", "Params.sketch14_diameter2")
pocket8 = doc.addObject("PartDesign::Pocket", "Pocket007")
body.addObject(pocket8)
pocket8.Profile = sketch14
pocket8.setExpression("Length", "Params.pocket8_length")
pocket8.Reversed = True

sketch15 = doc.addObject("Sketcher::SketchObject", "Sketch014")
body.addObject(sketch15)
sketch15.AttachmentSupport = (doc.YZ_Plane, [""])
sketch15.MapMode = "FlatFace"
sketch15.AttachmentOffset = App.Placement(App.Vector(0, 0, 40.5), App.Rotation())
sketch15.addGeometry(Part.LineSegment(App.Vector(0, -24.7, 0), App.Vector(0, -27.7, 0)), False)
sketch15.addGeometry(Part.LineSegment(App.Vector(0, -27.7, 0), App.Vector(6, -27.7, 0)), False)
sketch15.addGeometry(Part.LineSegment(App.Vector(6, -27.7, 0), App.Vector(6, -24.7, 0)), False)
sketch15.addGeometry(Part.LineSegment(App.Vector(6, -24.7, 0), App.Vector(0, -24.7, 0)), False)
sketch15.addConstraint(Sketcher.Constraint("Coincident", 0, 2, 1, 1))
sketch15.addConstraint(Sketcher.Constraint("Coincident", 1, 2, 2, 1))
sketch15.addConstraint(Sketcher.Constraint("Coincident", 2, 2, 3, 1))
sketch15.addConstraint(Sketcher.Constraint("Coincident", 3, 2, 0, 1))
sketch15.addConstraint(Sketcher.Constraint("Vertical", 0))
sketch15.addConstraint(Sketcher.Constraint("Horizontal", 1))
sketch15.addConstraint(Sketcher.Constraint("Vertical", 2))
sketch15.addConstraint(Sketcher.Constraint("Horizontal", 3))
sketch15.addConstraint(Sketcher.Constraint("PointOnObject", 0, 2, -2))
sketch15.addConstraint(Sketcher.Constraint("DistanceX", 1, 1, 1, 2, Q("6 mm")))
sketch15.addConstraint(Sketcher.Constraint("DistanceY", 0, 2, 0, 1, Q("3 mm")))
sketch15.addConstraint(Sketcher.Constraint("DistanceY", 0, 2, -1, 1, Q("27.7 mm")))
sketch15.setExpression("Constraints[9]", "Params.sketch15_width")
sketch15.setExpression("Constraints[10]", "Params.sketch15_height")
pocket9 = doc.addObject("PartDesign::Pocket", "Pocket008")
body.addObject(pocket9)
pocket9.Profile = sketch15
pocket9.setExpression("Length", "Params.pocket9_length")

doc.recompute()
